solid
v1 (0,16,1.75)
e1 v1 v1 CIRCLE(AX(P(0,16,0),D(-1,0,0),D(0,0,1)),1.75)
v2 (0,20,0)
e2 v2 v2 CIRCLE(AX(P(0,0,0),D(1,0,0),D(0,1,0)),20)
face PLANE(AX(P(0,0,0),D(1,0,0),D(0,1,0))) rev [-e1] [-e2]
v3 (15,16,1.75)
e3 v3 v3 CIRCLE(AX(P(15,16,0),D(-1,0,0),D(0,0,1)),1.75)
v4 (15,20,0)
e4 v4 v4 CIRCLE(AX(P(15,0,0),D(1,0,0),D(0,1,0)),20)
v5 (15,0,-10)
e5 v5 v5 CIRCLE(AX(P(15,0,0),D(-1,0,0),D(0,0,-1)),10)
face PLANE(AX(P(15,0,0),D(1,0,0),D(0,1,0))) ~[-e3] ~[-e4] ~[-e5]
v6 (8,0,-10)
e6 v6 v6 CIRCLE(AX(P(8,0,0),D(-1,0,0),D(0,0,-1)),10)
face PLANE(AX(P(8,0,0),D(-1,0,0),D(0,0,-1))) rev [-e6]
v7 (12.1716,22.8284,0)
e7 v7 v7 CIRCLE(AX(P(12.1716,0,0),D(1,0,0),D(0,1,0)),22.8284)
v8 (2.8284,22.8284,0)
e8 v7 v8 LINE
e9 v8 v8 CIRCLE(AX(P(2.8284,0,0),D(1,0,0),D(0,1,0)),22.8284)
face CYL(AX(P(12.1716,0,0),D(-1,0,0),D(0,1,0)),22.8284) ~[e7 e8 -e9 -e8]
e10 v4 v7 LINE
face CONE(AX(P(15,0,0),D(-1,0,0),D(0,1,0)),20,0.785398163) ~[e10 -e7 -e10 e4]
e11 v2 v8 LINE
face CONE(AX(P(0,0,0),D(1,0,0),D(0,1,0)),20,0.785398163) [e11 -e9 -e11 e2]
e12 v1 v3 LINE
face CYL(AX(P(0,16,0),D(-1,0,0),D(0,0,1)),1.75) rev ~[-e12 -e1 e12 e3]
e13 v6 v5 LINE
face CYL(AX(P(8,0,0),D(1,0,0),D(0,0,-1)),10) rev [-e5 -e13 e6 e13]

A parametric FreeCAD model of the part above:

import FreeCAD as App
import Part
import Sketcher
from FreeCAD import Vector
Q = App.Units.Quantity


def add_polygon(sketch, points):
    """Adds a closed chain of lines whose ends are joined by coincident constraints."""
    first, n = sketch.GeometryCount, len(points)
    for a, b in zip(points, points[1:] + points[:1]):
        sketch.addGeometry(Part.LineSegment(App.Vector(*a, 0), App.Vector(*b, 0)), False)
    for i in range(n):
        sketch.addConstraint(Sketcher.Constraint("Coincident", first + i, 2, first + (i + 1) % n, 1))

doc = App.newDocument("Part")
body = doc.addObject("PartDesign::Body", "Body")

# Sketch on XY plane
sketch1 = body.newObject("Sketcher::SketchObject", "Sketch")
sketch1.AttachmentSupport = (doc.getObject("XY_Plane"), [""])
sketch1.MapMode = "FlatFace"
add_polygon(sketch1, [(0, 20), (0, 0), (15, 0), (15, 20), (12.2, 22.8), (2.8, 22.8)])  # lines 0-5
sketch1.addConstraint([
    Sketcher.Constraint("Vertical", 0),
    Sketcher.Constraint("Horizontal", 1),
    Sketcher.Constraint("Vertical", 2),
    Sketcher.Constraint("Horizontal", 4),
    Sketcher.Constraint("Coincident", 0, 2, -1, 1),
    Sketcher.Constraint("Perpendicular", 3, 5),
    Sketcher.Constraint("Horizontal", 2, 2, 5, 2),
    Sketcher.Constraint("Equal", 3, 5),
    Sketcher.Constraint("DistanceX", 1, 1, 1, 2, Q("15 mm")),
    Sketcher.Constraint("DistanceY", 0, 2, 0, 1, Q("20 mm")),
    Sketcher.Constraint("Distance", 3, Q("4 mm")),
])
revolution = body.newObject("PartDesign::Revolution", "Revolution")
revolution.Profile = sketch1
revolution.ReferenceAxis = (sketch1, ["H_Axis"])
revolution.Angle = 360

# Sketch on YZ plane
sketch2 = body.newObject("Sketcher::SketchObject", "Sketch001")
sketch2.AttachmentSupport = (doc.getObject("YZ_Plane"), [""])
sketch2.MapMode = "FlatFace"
sketch2.addGeometry(Part.Circle(Vector(16, 0, 0), Vector(0, 0, 1), 1.8), False)
sketch2.addConstraint([
    Sketcher.Constraint("PointOnObject", 0, 3, -1),
    Sketcher.Constraint("Diameter", 0, Q("3.5 mm")),
    Sketcher.Constraint("DistanceX", -1, 1, 0, 3, Q("16 mm")),
])
pocket1 = body.newObject("PartDesign::Pocket", "Pocket")
pocket1.Profile = sketch2
pocket1.Length = 15
pocket1.Reversed = True

# Sketch on XZ plane
sketch3 = body.newObject("Sketcher::SketchObject", "Sketch002")
sketch3.AttachmentSupport = (doc.getObject("XZ_Plane"), [""])
sketch3.MapMode = "FlatFace"
add_polygon(sketch3, [(8, 0), (15, 0), (15, -10), (8, -10)])  # lines 0-3
sketch3.addConstraint([
    Sketcher.Constraint("Horizontal", 0),
    Sketcher.Constraint("Vertical", 1),
    Sketcher.Constraint("Horizontal", 2),
    Sketcher.Constraint("Vertical", 3),
    Sketcher.Constraint("PointOnObject", 0, 2, -1),
    Sketcher.Constraint("DistanceX", 0, 1, 0, 2, Q("7 mm")),
    Sketcher.Constraint("DistanceY", 1, 2, 1, 1, Q("10 mm")),
    Sketcher.Constraint("DistanceX", -1, 1, 0, 2, Q("15 mm")),
])
groove = body.newObject("PartDesign::Groove", "Groove")
groove.Profile = sketch3
groove.ReferenceAxis = (sketch3, ["H_Axis"])
groove.Angle = 360

doc.recompute()
